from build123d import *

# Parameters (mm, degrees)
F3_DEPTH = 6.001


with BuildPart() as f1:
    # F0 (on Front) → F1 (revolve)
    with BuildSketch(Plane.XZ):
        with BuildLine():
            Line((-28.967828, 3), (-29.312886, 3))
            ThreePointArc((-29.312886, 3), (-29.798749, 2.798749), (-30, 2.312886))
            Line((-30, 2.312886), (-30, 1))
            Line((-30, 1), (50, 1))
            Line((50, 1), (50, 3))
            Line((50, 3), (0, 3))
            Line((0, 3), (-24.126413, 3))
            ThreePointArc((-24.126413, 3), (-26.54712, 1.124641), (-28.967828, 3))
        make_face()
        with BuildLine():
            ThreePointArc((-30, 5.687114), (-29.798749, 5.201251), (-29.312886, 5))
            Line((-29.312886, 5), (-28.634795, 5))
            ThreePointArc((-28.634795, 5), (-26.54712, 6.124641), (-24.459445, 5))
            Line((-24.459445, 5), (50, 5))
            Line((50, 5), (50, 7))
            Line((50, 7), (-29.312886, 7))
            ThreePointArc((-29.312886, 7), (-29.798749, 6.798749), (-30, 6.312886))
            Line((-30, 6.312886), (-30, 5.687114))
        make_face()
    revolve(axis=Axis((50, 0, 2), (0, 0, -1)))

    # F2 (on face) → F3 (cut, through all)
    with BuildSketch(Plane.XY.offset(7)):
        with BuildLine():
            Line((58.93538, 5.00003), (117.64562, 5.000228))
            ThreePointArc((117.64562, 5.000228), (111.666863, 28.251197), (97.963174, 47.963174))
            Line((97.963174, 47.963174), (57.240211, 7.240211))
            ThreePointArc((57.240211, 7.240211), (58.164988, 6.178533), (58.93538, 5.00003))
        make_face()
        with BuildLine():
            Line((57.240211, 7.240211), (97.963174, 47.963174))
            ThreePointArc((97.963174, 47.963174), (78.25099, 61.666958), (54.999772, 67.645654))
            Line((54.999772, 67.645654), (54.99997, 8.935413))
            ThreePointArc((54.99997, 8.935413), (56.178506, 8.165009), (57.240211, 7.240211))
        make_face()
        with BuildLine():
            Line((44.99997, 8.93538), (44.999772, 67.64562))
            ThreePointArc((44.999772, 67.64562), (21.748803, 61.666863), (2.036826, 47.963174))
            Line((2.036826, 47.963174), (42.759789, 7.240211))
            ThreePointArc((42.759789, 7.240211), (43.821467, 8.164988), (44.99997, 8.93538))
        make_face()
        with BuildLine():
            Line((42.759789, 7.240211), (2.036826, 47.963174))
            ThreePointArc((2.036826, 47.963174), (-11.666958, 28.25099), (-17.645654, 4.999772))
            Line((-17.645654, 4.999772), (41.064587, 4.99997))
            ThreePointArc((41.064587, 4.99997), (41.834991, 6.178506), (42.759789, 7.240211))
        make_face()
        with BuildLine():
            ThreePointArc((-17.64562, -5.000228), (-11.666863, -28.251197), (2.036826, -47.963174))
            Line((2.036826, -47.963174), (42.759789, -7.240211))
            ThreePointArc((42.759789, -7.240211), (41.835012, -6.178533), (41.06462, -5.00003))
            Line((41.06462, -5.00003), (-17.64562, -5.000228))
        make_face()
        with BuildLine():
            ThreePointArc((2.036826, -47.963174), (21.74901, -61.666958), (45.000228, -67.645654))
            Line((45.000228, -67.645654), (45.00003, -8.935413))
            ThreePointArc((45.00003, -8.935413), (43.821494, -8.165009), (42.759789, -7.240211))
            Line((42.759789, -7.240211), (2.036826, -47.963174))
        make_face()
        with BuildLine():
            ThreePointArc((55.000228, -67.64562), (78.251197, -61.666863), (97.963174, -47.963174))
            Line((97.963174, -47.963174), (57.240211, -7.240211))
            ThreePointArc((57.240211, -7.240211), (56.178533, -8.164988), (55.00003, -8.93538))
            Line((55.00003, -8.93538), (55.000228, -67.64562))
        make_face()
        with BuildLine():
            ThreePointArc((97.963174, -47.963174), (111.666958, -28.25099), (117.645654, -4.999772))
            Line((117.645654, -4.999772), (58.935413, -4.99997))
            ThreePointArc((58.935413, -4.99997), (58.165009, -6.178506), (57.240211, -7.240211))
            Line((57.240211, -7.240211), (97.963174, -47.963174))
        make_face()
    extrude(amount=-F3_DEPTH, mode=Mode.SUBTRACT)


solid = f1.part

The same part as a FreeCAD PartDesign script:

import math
import FreeCAD as App
import Part
import Sketcher

V = App.Vector
Q = App.Units.Quantity

doc = App.newDocument("Part")
params = doc.addObject("Spreadsheet::Sheet", "Params")
for row, (alias, value) in enumerate([
    ("sketch1_radius", "2.5 mm"),
    ("sketch1_width", "80 mm"),
    ("sketch1_height", "2 mm"),
    ("sketch1_height2", "6 mm"),
    ("revolution_angle", "360 deg"),
], start=1):
    params.set(f"A{row}", alias)
    params.set(f"B{row}", "=" + value)
    params.setAlias(f"B{row}", alias)

body = doc.addObject("PartDesign::Body", "Body")
body.AllowCompound = True

# Sketch on XZ plane
sketch1 = body.newObject("Sketcher::SketchObject", "Sketch")
sketch1.AttachmentSupport = (doc.getObject("XZ_Plane"), [""])
sketch1.MapMode = "FlatFace"
sketch1.addGeometry(Part.LineSegment(V(-28.967828, 3, 0), V(-29.312886, 3, 0)), False)
sketch1.addGeometry(Part.ArcOfCircle(Part.Circle(V(-29.312886, 2.312886, 0), V(0, 0, 1), 0.687114), math.radians(89.999991), math.radians(180.000009)), False)
sketch1.addGeometry(Part.LineSegment(V(-30, 2.312886, 0), V(-30, 1, 0)), False)
sketch1.addGeometry(Part.LineSegment(V(-30, 1, 0), V(50, 1, 0)), False)
sketch1.addGeometry(Part.LineSegment(V(50, 1, 0), V(50, 3, 0)), False)
sketch1.addGeometry(Part.LineSegment(V(50, 3, 0), V(-24.126413, 3, 0)), False)
sketch1.addGeometry(Part.ArcOfCircle(Part.Circle(V(-26.54712, 3.624641, 0), V(0, 0, 1), 2.5), math.radians(-165.53098), math.radians(-14.46902)), False)
sketch1.addGeometry(Part.ArcOfCircle(Part.Circle(V(-29.312886, 5.687114, 0), V(0, 0, 1), 0.687114), math.radians(179.999991), math.radians(270.000009)), False)
sketch1.addGeometry(Part.LineSegment(V(-29.312886, 5, 0), V(-28.634795, 5, 0)), False)
sketch1.addGeometry(Part.ArcOfCircle(Part.Circle(V(-26.54712, 3.624641, 0), V(0, 0, 1), 2.5), math.radians(33.376861), math.radians(146.623139)), False)
sketch1.addGeometry(Part.LineSegment(V(-24.459445, 5, 0), V(50, 5, 0)), False)
sketch1.addGeometry(Part.LineSegment(V(50, 5, 0), V(50, 7, 0)), False)
sketch1.addGeometry(Part.LineSegment(V(50, 7, 0), V(-29.312886, 7, 0)), False)
sketch1.addGeometry(Part.ArcOfCircle(Part.Circle(V(-29.312886, 6.312886, 0), V(0, 0, 1), 0.687114), math.radians(89.999991), math.radians(180.000009)), False)
sketch1.addGeometry(Part.LineSegment(V(-30, 6.312886, 0), V(-30, 5.687114, 0)), False)
sketch1.addGeometry(Part.LineSegment(V(50, 7, 0), V(50, 1, 0)), True)  # axis
sketch1.addConstraint(Sketcher.Constraint("Tangent", 0, 2, 1, 1))
sketch1.addConstraint(Sketcher.Constraint("Tangent", 1, 2, 2, 1))
sketch1.addConstraint(Sketcher.Constraint("Coincident", 2, 2, 3, 1))
sketch1.addConstraint(Sketcher.Constraint("Coincident", 3, 2, 4, 1))
sketch1.addConstraint(Sketcher.Constraint("Coincident", 4, 2, 5, 1))
sketch1.addConstraint(Sketcher.Constraint("Coincident", 5, 2, 6, 2))
sketch1.addConstraint(Sketcher.Constraint("Coincident", 6, 1, 0, 1))
sketch1.addConstraint(Sketcher.Constraint("Tangent", 7, 2, 8, 1))
sketch1.addConstraint(Sketcher.Constraint("Coincident", 8, 2, 9, 2))
sketch1.addConstraint(Sketcher.Constraint("Coincident", 9, 1, 10, 1))
sketch1.addConstraint(Sketcher.Constraint("Coincident", 10, 2, 11, 1))
sketch1.addConstraint(Sketcher.Constraint("Coincident", 11, 2, 12, 1))
sketch1.addConstraint(Sketcher.Constraint("Tangent", 12, 2, 13, 1))
sketch1.addConstraint(Sketcher.Constraint("Tangent", 13, 2, 14, 1))
sketch1.addConstraint(Sketcher.Constraint("Tangent", 14, 2, 7, 1))
sketch1.addConstraint(Sketcher.Constraint("Horizontal", 0))
sketch1.addConstraint(Sketcher.Constraint("Vertical", 2))
sketch1.addConstraint(Sketcher.Constraint("Horizontal", 3))
sketch1.addConstraint(Sketcher.Constraint("Vertical", 4))
sketch1.addConstraint(Sketcher.Constraint("Horizontal", 5))
sketch1.addConstraint(Sketcher.Constraint("Horizontal", 8))
sketch1.addConstraint(Sketcher.Constraint("Horizontal", 10))
sketch1.addConstraint(Sketcher.Constraint("Vertical", 11))
sketch1.addConstraint(Sketcher.Constraint("Horizontal", 12))
sketch1.addConstraint(Sketcher.Constraint("Vertical", 14))
sketch1.addConstraint(Sketcher.Constraint("Vertical", 15))
sketch1.addConstraint(Sketcher.Constraint("Coincident", 9, 3, 6, 3))
sketch1.addConstraint(Sketcher.Constraint("Coincident", 15, 1, 11, 2))
sketch1.addConstraint(Sketcher.Constraint("Coincident", 15, 2, 3, 2))
sketch1.addConstraint(Sketcher.Constraint("Equal", 1, 7))
sketch1.addConstraint(Sketcher.Constraint("Equal", 6, 9))
sketch1.addConstraint(Sketcher.Constraint("Equal", 7, 13))
sketch1.addConstraint(Sketcher.Constraint("Horizontal", 0, 2, 4, 2))
sketch1.addConstraint(Sketcher.Constraint("Horizontal", 8, 2, 9, 1))
sketch1.addConstraint(Sketcher.Constraint("Vertical", 1, 3, 7, 3))
sketch1.addConstraint(Sketcher.Constraint("Equal", 4, 11))
sketch1.addConstraint(Sketcher.Constraint("Radius", 6, Q("2.5 mm")))
sketch1.addConstraint(Sketcher.Constraint("DistanceX", 3, 1, 3, 2, Q("80 mm")))
sketch1.addConstraint(Sketcher.Constraint("DistanceY", 4, 1, 4, 2, Q("2 mm")))
sketch1.addConstraint(Sketcher.Constraint("DistanceY", 15, 2, 15, 1, Q("6 mm")))
sketch1.addConstraint(Sketcher.Constraint("DistanceY", -1, 1, 0, 2, Q("3 mm")))
sketch1.addConstraint(Sketcher.Constraint("DistanceX", 1, 2, -1, 1, Q("30 mm")))
sketch1.addConstraint(Sketcher.Constraint("Radius", 1, Q("0.687114 mm")))
sketch1.addConstraint(Sketcher.Constraint("DistanceX", 8, 1, 8, 2, Q("0.678091 mm")))
sketch1.addConstraint(Sketcher.Constraint("DistanceX", 0, 2, 0, 1, Q("0.345058 mm")))
sketch1.setExpression("Constraints[36]", "Params.sketch1_radius")
sketch1.setExpression("Constraints[37]", "Params.sketch1_width")
sketch1.setExpression("Constraints[38]", "Params.sketch1_height")
sketch1.setExpression("Constraints[39]", "Params.sketch1_height2")
revolution = body.newObject("PartDesign::Revolution", "Revolution")
revolution.Profile = sketch1
revolution.ReferenceAxis = (sketch1, ["Axis0"])
revolution.setExpression("Angle", "Params.revolution_angle")

# Sketch on XY plane
sketch2 = body.newObject("Sketcher::SketchObject", "Sketch001")
sketch2.AttachmentSupport = (doc.getObject("XY_Plane"), [""])
sketch2.MapMode = "FlatFace"
sketch2.AttachmentOffset = App.Placement(V(0, 0, 7), App.Rotation())
sketch2.addGeometry(Part.LineSegment(V(58.93538, 5.00003, 0), V(117.64562, 5.000228, 0)), False)
sketch2.addGeometry(Part.ArcOfCircle(Part.Circle(V(49.999997, -0.000002, 0), V(0, 0, 1), 67.830175), math.radians(4.227502), math.radians(45)), False)
sketch2.addGeometry(Part.ArcOfCircle(Part.Circle(V(49.999998, -0.000003, 0), V(0, 0, 1), 67.830175), math.radians(45), math.radians(85.772884)), False)
sketch2.addGeometry(Part.LineSegment(V(54.999772, 67.645654, 0), V(54.99997, 8.935413, 0)), False)
sketch2.addGeometry(Part.ArcOfCircle(Part.Circle(V(50.000002, 0.000001, 0), V(0, 0, 1), 10.239203), math.radians(45.000004), math.radians(60.770032)), False)
sketch2.addGeometry(Part.ArcOfCircle(Part.Circle(V(49.999942, -0.000045, 0), V(0, 0, 1), 10.239277), math.radians(29.230419), math.radians(44.999949)), False)
sketch2.addGeometry(Part.LineSegment(V(44.99997, 8.93538, 0), V(44.999772, 67.64562, 0)), False)
sketch2.addGeometry(Part.ArcOfCircle(Part.Circle(V(50.000002, -0.000003, 0), V(0, 0, 1), 67.830175), math.radians(94.227502), math.radians(135)), False)
sketch2.addGeometry(Part.ArcOfCircle(Part.Circle(V(50.000003, -0.000002, 0), V(0, 0, 1), 67.830175), math.radians(135), math.radians(175.772884)), False)
sketch2.addGeometry(Part.LineSegment(V(-17.645654, 4.999772, 0), V(41.064587, 4.99997, 0)), False)
sketch2.addGeometry(Part.ArcOfCircle(Part.Circle(V(49.999999, 0.000002, 0), V(0, 0, 1), 10.239203), math.radians(135.000004), math.radians(150.770032)), False)
sketch2.addGeometry(Part.ArcOfCircle(Part.Circle(V(50.000045, -0.000058, 0), V(0, 0, 1), 10.239277), math.radians(119.230419), math.radians(134.999949)), False)
sketch2.addGeometry(Part.ArcOfCircle(Part.Circle(V(50.000003, 0.000002, 0), V(0, 0, 1), 67.830175), math.radians(-175.772498), math.radians(-135)), False)
sketch2.addGeometry(Part.ArcOfCircle(Part.Circle(V(50.000002, 0.000003, 0), V(0, 0, 1), 67.830175), math.radians(-135), math.radians(-94.227116)), False)
sketch2.addGeometry(Part.LineSegment(V(45.000228, -67.645654, 0), V(45.00003, -8.935413, 0)), False)
sketch2.addGeometry(Part.ArcOfCircle(Part.Circle(V(49.999998, -0.000001, 0), V(0, 0, 1), 10.239203), math.radians(-134.999996), math.radians(-119.229968)), False)
sketch2.addGeometry(Part.ArcOfCircle(Part.Circle(V(50.000058, 0.000045, 0), V(0, 0, 1), 10.239277), math.radians(-150.769581), math.radians(-135.000051)), False)
sketch2.addGeometry(Part.LineSegment(V(41.06462, -5.00003, 0), V(-17.64562, -5.000228, 0)), False)
sketch2.addGeometry(Part.ArcOfCircle(Part.Circle(V(49.999998, 0.000003, 0), V(0, 0, 1), 67.830175), math.radians(-85.772498), math.radians(-45)), False)
sketch2.addGeometry(Part.ArcOfCircle(Part.Circle(V(49.999997, 0.000002, 0), V(0, 0, 1), 67.830175), math.radians(-45), math.radians(-4.227116)), False)
sketch2.addGeometry(Part.LineSegment(V(117.645654, -4.999772, 0), V(58.935413, -4.99997, 0)), False)
sketch2.addGeometry(Part.ArcOfCircle(Part.Circle(V(50.000001, -0.000002, 0), V(0, 0, 1), 10.239203), math.radians(-44.999996), math.radians(-29.229968)), False)
sketch2.addGeometry(Part.ArcOfCircle(Part.Circle(V(49.999955, 0.000058, 0), V(0, 0, 1), 10.239277), math.radians(-60.769581), math.radians(-45.000051)), False)
sketch2.addGeometry(Part.LineSegment(V(55.00003, -8.93538, 0), V(55.000228, -67.64562, 0)), False)
sketch2.addConstraint(Sketcher.Constraint("Coincident", 0, 2, 1, 1))
sketch2.addConstraint(Sketcher.Constraint("Tangent", 1, 2, 2, 1))
sketch2.addConstraint(Sketcher.Constraint("Coincident", 2, 2, 3, 1))
sketch2.addConstraint(Sketcher.Constraint("Coincident", 3, 2, 4, 2))
sketch2.addConstraint(Sketcher.Constraint("Tangent", 4, 1, 5, 2))
sketch2.addConstraint(Sketcher.Constraint("Coincident", 5, 1, 0, 1))
sketch2.addConstraint(Sketcher.Constraint("Coincident", 6, 2, 7, 1))
sketch2.addConstraint(Sketcher.Constraint("Tangent", 7, 2, 8, 1))
sketch2.addConstraint(Sketcher.Constraint("Coincident", 8, 2, 9, 1))
sketch2.addConstraint(Sketcher.Constraint("Coincident", 9, 2, 10, 2))
sketch2.addConstraint(Sketcher.Constraint("Tangent", 10, 1, 11, 2))
sketch2.addConstraint(Sketcher.Constraint("Coincident", 11, 1, 6, 1))
sketch2.addConstraint(Sketcher.Constraint("Tangent", 12, 2, 13, 1))
sketch2.addConstraint(Sketcher.Constraint("Coincident", 13, 2, 14, 1))
sketch2.addConstraint(Sketcher.Constraint("Coincident", 14, 2, 15, 2))
sketch2.addConstraint(Sketcher.Constraint("Tangent", 15, 1, 16, 2))
sketch2.addConstraint(Sketcher.Constraint("Coincident", 16, 1, 17, 1))
sketch2.addConstraint(Sketcher.Constraint("Coincident", 17, 2, 12, 1))
sketch2.addConstraint(Sketcher.Constraint("Tangent", 18, 2, 19, 1))
sketch2.addConstraint(Sketcher.Constraint("Coincident", 19, 2, 20, 1))
sketch2.addConstraint(Sketcher.Constraint("Coincident", 20, 2, 21, 2))
sketch2.addConstraint(Sketcher.Constraint("Tangent", 21, 1, 22, 2))
sketch2.addConstraint(Sketcher.Constraint("Coincident", 22, 1, 23, 1))
sketch2.addConstraint(Sketcher.Constraint("Coincident", 23, 2, 18, 1))
sketch2.addConstraint(Sketcher.Constraint("Coincident", 4, 3, 1, 3))
sketch2.addConstraint(Sketcher.Constraint("Coincident", 7, 3, 1, 3))
sketch2.addConstraint(Sketcher.Constraint("Coincident", 10, 3, 1, 3))
sketch2.addConstraint(Sketcher.Constraint("Coincident", 12, 3, 1, 3))
sketch2.addConstraint(Sketcher.Constraint("Coincident", 15, 3, 1, 3))
sketch2.addConstraint(Sketcher.Constraint("Coincident", 18, 3, 1, 3))
sketch2.addConstraint(Sketcher.Constraint("Coincident", 21, 3, 1, 3))
sketch2.addConstraint(Sketcher.Constraint("Equal", 1, 2))
sketch2.addConstraint(Sketcher.Constraint("Equal", 2, 7))
sketch2.addConstraint(Sketcher.Constraint("Equal", 7, 8))
sketch2.addConstraint(Sketcher.Constraint("Equal", 4, 10))
sketch2.addConstraint(Sketcher.Constraint("Equal", 5, 11))
sketch2.addConstraint(Sketcher.Constraint("Equal", 8, 12))
sketch2.addConstraint(Sketcher.Constraint("Equal", 12, 13))
sketch2.addConstraint(Sketcher.Constraint("Equal", 10, 15))
sketch2.addConstraint(Sketcher.Constraint("Equal", 11, 16))
sketch2.addConstraint(Sketcher.Constraint("Equal", 13, 18))
sketch2.addConstraint(Sketcher.Constraint("Equal", 18, 19))
sketch2.addConstraint(Sketcher.Constraint("Equal", 15, 21))
sketch2.addConstraint(Sketcher.Constraint("Equal", 16, 22))
sketch2.addConstraint(Sketcher.Constraint("Symmetric", 7, 2, 12, 2, -1))
sketch2.addConstraint(Sketcher.Constraint("Perpendicular", 0, 3))
sketch2.addConstraint(Sketcher.Constraint("Parallel", 3, 6))
sketch2.addConstraint(Sketcher.Constraint("Perpendicular", 6, 9))
sketch2.addConstraint(Sketcher.Constraint("Perpendicular", 9, 14))
sketch2.addConstraint(Sketcher.Constraint("Perpendicular", 14, 17))
sketch2.addConstraint(Sketcher.Constraint("Parallel", 17, 20))
sketch2.addConstraint(Sketcher.Constraint("Perpendicular", 20, 23))
sketch2.addConstraint(Sketcher.Constraint("Horizontal", 1, 2, 7, 2))
sketch2.addConstraint(Sketcher.Constraint("Horizontal", 4, 1, 10, 1))
sketch2.addConstraint(Sketcher.Constraint("Horizontal", 12, 2, 18, 2))
sketch2.addConstraint(Sketcher.Constraint("Horizontal", 15, 1, 21, 1))
sketch2.addConstraint(Sketcher.Constraint("Vertical", 10, 1, 15, 1))
sketch2.addConstraint(Sketcher.Constraint("Equal", 0, 3))
sketch2.addConstraint(Sketcher.Constraint("Equal", 3, 6))
sketch2.addConstraint(Sketcher.Constraint("Equal", 6, 9))
sketch2.addConstraint(Sketcher.Constraint("Equal", 9, 14))
sketch2.addConstraint(Sketcher.Constraint("Equal", 14, 17))
sketch2.addConstraint(Sketcher.Constraint("Equal", 17, 20))
sketch2.addConstraint(Sketcher.Constraint("Equal", 20, 23))
sketch2.addConstraint(Sketcher.Constraint("DistanceX", -1, 1, 4, 3, Q("50.000002 mm")))
sketch2.addConstraint(Sketcher.Constraint("DistanceX", 6, 2, 2, 2, Q("10 mm")))
sketch2.addConstraint(Sketcher.Constraint("Radius", 1, Q("67.830175 mm")))
sketch2.addConstraint(Sketcher.Constraint("Radius", 4, Q("10.239203 mm")))
sketch2.addConstraint(Sketcher.Constraint("Radius", 5, Q("10.239277 mm")))
sketch2.addConstraint(Sketcher.Constraint("DistanceX", 2, 2, 1, 2, Q("42.963402 mm")))
sketch2.addConstraint(Sketcher.Constraint("DistanceY", 4, 1, 3, 2, Q("1.695202 mm")))
sketch2.addConstraint(Sketcher.Constraint("DistanceY", 8, 2, 7, 2, Q("42.963402 mm")))
pocket1 = body.newObject("PartDesign::Pocket", "Pocket")
pocket1.Profile = sketch2
pocket1.Type = "ThroughAll"

doc.recompute()
